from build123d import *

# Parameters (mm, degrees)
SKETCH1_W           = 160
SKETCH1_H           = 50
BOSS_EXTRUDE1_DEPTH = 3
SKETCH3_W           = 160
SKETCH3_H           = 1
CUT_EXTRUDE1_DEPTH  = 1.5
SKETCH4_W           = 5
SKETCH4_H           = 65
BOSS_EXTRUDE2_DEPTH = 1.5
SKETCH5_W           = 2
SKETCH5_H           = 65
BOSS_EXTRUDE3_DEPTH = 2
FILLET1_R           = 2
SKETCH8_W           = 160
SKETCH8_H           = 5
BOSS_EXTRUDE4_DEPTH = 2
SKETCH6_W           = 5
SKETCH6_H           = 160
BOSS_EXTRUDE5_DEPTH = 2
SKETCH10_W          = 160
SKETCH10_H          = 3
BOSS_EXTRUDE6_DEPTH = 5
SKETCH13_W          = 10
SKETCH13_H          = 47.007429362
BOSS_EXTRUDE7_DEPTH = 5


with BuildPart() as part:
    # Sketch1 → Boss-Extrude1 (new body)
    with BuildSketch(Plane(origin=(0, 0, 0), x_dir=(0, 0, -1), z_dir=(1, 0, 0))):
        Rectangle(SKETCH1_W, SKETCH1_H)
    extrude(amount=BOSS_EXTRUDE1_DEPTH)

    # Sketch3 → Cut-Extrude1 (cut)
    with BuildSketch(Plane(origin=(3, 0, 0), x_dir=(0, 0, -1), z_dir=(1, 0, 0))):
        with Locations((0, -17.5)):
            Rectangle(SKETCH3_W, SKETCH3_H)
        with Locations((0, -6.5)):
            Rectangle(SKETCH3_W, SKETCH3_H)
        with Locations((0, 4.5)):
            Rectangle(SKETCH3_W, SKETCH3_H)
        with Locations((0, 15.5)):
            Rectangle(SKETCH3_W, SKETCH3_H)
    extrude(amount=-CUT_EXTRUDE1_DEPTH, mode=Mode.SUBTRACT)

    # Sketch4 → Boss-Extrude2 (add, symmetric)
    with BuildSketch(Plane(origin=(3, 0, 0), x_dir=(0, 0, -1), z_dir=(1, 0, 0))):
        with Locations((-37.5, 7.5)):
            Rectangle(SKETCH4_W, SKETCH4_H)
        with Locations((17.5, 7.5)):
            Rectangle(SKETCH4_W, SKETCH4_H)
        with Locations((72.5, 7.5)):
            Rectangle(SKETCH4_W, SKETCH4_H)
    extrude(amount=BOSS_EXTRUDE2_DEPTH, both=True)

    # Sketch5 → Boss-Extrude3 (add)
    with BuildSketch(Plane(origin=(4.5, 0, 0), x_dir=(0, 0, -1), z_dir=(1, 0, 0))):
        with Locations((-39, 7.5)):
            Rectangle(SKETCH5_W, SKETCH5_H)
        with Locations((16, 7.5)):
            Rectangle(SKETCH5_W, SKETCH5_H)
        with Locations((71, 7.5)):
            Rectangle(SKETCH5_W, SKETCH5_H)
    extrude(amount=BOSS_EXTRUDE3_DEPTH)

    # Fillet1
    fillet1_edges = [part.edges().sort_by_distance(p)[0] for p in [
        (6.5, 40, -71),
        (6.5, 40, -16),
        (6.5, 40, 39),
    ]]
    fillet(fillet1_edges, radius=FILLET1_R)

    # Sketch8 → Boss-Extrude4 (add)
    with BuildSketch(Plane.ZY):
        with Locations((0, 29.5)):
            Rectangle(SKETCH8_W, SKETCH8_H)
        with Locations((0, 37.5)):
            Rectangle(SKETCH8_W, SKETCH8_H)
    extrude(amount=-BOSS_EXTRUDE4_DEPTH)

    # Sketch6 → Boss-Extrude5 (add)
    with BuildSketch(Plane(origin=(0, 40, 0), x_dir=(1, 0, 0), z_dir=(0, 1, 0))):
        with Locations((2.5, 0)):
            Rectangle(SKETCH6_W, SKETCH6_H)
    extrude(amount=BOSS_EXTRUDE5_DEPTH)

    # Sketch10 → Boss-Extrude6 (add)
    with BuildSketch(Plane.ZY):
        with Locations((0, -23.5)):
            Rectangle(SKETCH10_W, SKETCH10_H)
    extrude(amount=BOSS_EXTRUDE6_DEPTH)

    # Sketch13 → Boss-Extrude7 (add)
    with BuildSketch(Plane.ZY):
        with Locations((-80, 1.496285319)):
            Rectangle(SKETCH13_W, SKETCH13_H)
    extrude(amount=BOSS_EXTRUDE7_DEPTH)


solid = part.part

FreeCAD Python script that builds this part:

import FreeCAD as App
import Part
import Sketcher
Q = App.Units.Quantity


def edges_at(feature, points):
    """Names of the edges that pass closest to the given points."""
    edges = feature.Shape.Edges
    near = lambda p: min(range(len(edges)), key=lambda i: edges[i].distToShape(Part.Vertex(*p))[0])
    return sorted({f"Edge{near(p) + 1}" for p in points})


def add_polygon(sketch, points):
    """Adds a closed chain of lines whose ends are joined by coincident constraints."""
    first, n = sketch.GeometryCount, len(points)
    for a, b in zip(points, points[1:] + points[:1]):
        sketch.addGeometry(Part.LineSegment(App.Vector(*a, 0), App.Vector(*b, 0)), False)
    for i in range(n):
        sketch.addConstraint(Sketcher.Constraint("Coincident", first + i, 2, first + (i + 1) % n, 1))

doc = App.newDocument("Part")
body = doc.addObject("PartDesign::Body", "Body")

sketch1 = doc.addObject("Sketcher::SketchObject", "Sketch")
body.addObject(sketch1)
sketch1.AttachmentSupport = (doc.YZ_Plane, [""])
sketch1.MapMode = "FlatFace"
add_polygon(sketch1, [(25, 80), (-25, 80), (-25, -80), (25, -80)])
sketch1.addConstraint([
    Sketcher.Constraint("Horizontal", 0),
    Sketcher.Constraint("Vertical", 1),
    Sketcher.Constraint("Horizontal", 2),
    Sketcher.Constraint("Vertical", 3),
    Sketcher.Constraint("Symmetric", 0, 2, 2, 2, -1, 1),
    Sketcher.Constraint("DistanceX", 0, 2, 0, 1, Q("50 mm")),
    Sketcher.Constraint("DistanceY", 1, 2, 1, 1, Q("160 mm")),
])
pad1 = doc.addObject("PartDesign::Pad", "Pad")
body.addObject(pad1)
pad1.Profile = sketch1
pad1.Length = 3

sketch2 = doc.addObject("Sketcher::SketchObject", "Sketch001")
body.addObject(sketch2)
sketch2.AttachmentSupport = (doc.YZ_Plane, [""])
sketch2.MapMode = "FlatFace"
sketch2.AttachmentOffset = App.Placement(App.Vector(0, 0, 3), App.Rotation())
add_polygon(sketch2, [(-17, 80), (-18, 80), (-18, -80), (-17, -80)])
add_polygon(sketch2, [(-6, 80), (-7, 80), (-7, -80), (-6, -80)])
add_polygon(sketch2, [(5, 80), (4, 80), (4, -80), (5, -80)])
add_polygon(sketch2, [(16, 80), (15, 80), (15, -80), (16, -80)])
sketch2.addConstraint([
    Sketcher.Constraint("Horizontal", 0),
    Sketcher.Constraint("Vertical", 1),
    Sketcher.Constraint("Horizontal", 2),
    Sketcher.Constraint("Vertical", 3),
    Sketcher.Constraint("Horizontal", 4),
    Sketcher.Constraint("Vertical", 5),
    Sketcher.Constraint("Horizontal", 6),
    Sketcher.Constraint("Vertical", 7),
    Sketcher.Constraint("Horizontal", 8),
    Sketcher.Constraint("Vertical", 9),
    Sketcher.Constraint("Horizontal", 10),
    Sketcher.Constraint("Vertical", 11),
    Sketcher.Constraint("Horizontal", 12),
    Sketcher.Constraint("Vertical", 13),
    Sketcher.Constraint("Horizontal", 14),
    Sketcher.Constraint("Vertical", 15),
    Sketcher.Constraint("Horizontal", 3, 2, 4, 2),
    Sketcher.Constraint("Horizontal", 2, 2, 5, 2),
    Sketcher.Constraint("Horizontal", 7, 2, 8, 2),
    Sketcher.Constraint("Horizontal", 6, 2, 9, 2),
    Sketcher.Constraint("Horizontal", 11, 2, 12, 2),
    Sketcher.Constraint("Horizontal", 10, 2, 13, 2),
    Sketcher.Constraint("Equal", 2, 4),
    Sketcher.Constraint("Equal", 6, 8),
    Sketcher.Constraint("Equal", 10, 12),
    Sketcher.Constraint("DistanceX", 0, 2, 0, 1, Q("1 mm")),
    Sketcher.Constraint("DistanceY", 1, 2, 1, 1, Q("160 mm")),
    Sketcher.Constraint("DistanceX", 0, 2, -1, 1, Q("18 mm")),
    Sketcher.Constraint("DistanceY", -1, 1, 0, 2, Q("80 mm")),
    Sketcher.Constraint("DistanceX", 4, 2, -1, 1, Q("7 mm")),
    Sketcher.Constraint("DistanceX", -1, 1, 8, 2, Q("4 mm")),
    Sketcher.Constraint("DistanceX", -1, 1, 12, 2, Q("15 mm")),
])
pocket1 = doc.addObject("PartDesign::Pocket", "Pocket")
body.addObject(pocket1)
pocket1.Profile = sketch2
pocket1.Length = 1.5

sketch3 = doc.addObject("Sketcher::SketchObject", "Sketch002")
body.addObject(sketch3)
sketch3.AttachmentSupport = (doc.YZ_Plane, [""])
sketch3.MapMode = "FlatFace"
sketch3.AttachmentOffset = App.Placement(App.Vector(0, 0, 3), App.Rotation())
add_polygon(sketch3, [(40, 40), (-25, 40), (-25, 35), (40, 35)])
add_polygon(sketch3, [(40, -15), (-25, -15), (-25, -20), (40, -20)])
add_polygon(sketch3, [(40, -70), (-25, -70), (-25, -75), (40, -75)])
sketch3.addConstraint([
    Sketcher.Constraint("Horizontal", 0),
    Sketcher.Constraint("Vertical", 1),
    Sketcher.Constraint("Horizontal", 2),
    Sketcher.Constraint("Vertical", 3),
    Sketcher.Constraint("Horizontal", 4),
    Sketcher.Constraint("Vertical", 5),
    Sketcher.Constraint("Horizontal", 6),
    Sketcher.Constraint("Vertical", 7),
    Sketcher.Constraint("Horizontal", 8),
    Sketcher.Constraint("Vertical", 9),
    Sketcher.Constraint("Horizontal", 10),
    Sketcher.Constraint("Vertical", 11),
    Sketcher.Constraint("Vertical", 1, 2, 4, 2),
    Sketcher.Constraint("Vertical", 3, 2, 6, 2),
    Sketcher.Constraint("Vertical", 5, 2, 8, 2),
    Sketcher.Constraint("Vertical", 7, 2, 10, 2),
    Sketcher.Constraint("Equal", 3, 5),
    Sketcher.Constraint("Equal", 7, 9),
    Sketcher.Constraint("DistanceX", 0, 2, 0, 1, Q("65 mm")),
    Sketcher.Constraint("DistanceY", 1, 2, 1, 1, Q("5 mm")),
    Sketcher.Constraint("DistanceX", 0, 2, -1, 1, Q("25 mm")),
    Sketcher.Constraint("DistanceY", -1, 1, 0, 2, Q("40 mm")),
    Sketcher.Constraint("DistanceY", 4, 2, -1, 1, Q("15 mm")),
    Sketcher.Constraint("DistanceY", 8, 2, -1, 1, Q("70 mm")),
])
pad2 = doc.addObject("PartDesign::Pad", "Pad001")
body.addObject(pad2)
pad2.Profile = sketch3
pad2.Length = 3
pad2.Midplane = True

sketch4 = doc.addObject("Sketcher::SketchObject", "Sketch003")
body.addObject(sketch4)
sketch4.AttachmentSupport = (doc.YZ_Plane, [""])
sketch4.MapMode = "FlatFace"
sketch4.AttachmentOffset = App.Placement(App.Vector(0, 0, 4.5), App.Rotation())
add_polygon(sketch4, [(40, 40), (-25, 40), (-25, 38), (40, 38)])
add_polygon(sketch4, [(40, -15), (-25, -15), (-25, -17), (40, -17)])
add_polygon(sketch4, [(40, -70), (-25, -70), (-25, -72), (40, -72)])
sketch4.addConstraint([
    Sketcher.Constraint("Horizontal", 0),
    Sketcher.Constraint("Vertical", 1),
    Sketcher.Constraint("Horizontal", 2),
    Sketcher.Constraint("Vertical", 3),
    Sketcher.Constraint("Horizontal", 4),
    Sketcher.Constraint("Vertical", 5),
    Sketcher.Constraint("Horizontal", 6),
    Sketcher.Constraint("Vertical", 7),
    Sketcher.Constraint("Horizontal", 8),
    Sketcher.Constraint("Vertical", 9),
    Sketcher.Constraint("Horizontal", 10),
    Sketcher.Constraint("Vertical", 11),
    Sketcher.Constraint("Vertical", 1, 2, 4, 2),
    Sketcher.Constraint("Vertical", 3, 2, 6, 2),
    Sketcher.Constraint("Vertical", 5, 2, 8, 2),
    Sketcher.Constraint("Vertical", 7, 2, 10, 2),
    Sketcher.Constraint("Equal", 3, 5),
    Sketcher.Constraint("Equal", 7, 9),
    Sketcher.Constraint("DistanceX", 0, 2, 0, 1, Q("65 mm")),
    Sketcher.Constraint("DistanceY", 1, 2, 1, 1, Q("2 mm")),
    Sketcher.Constraint("DistanceX", 0, 2, -1, 1, Q("25 mm")),
    Sketcher.Constraint("DistanceY", -1, 1, 0, 2, Q("40 mm")),
    Sketcher.Constraint("DistanceY", 4, 2, -1, 1, Q("15 mm")),
    Sketcher.Constraint("DistanceY", 8, 2, -1, 1, Q("70 mm")),
])
pad3 = doc.addObject("PartDesign::Pad", "Pad002")
body.addObject(pad3)
pad3.Profile = sketch4
pad3.Length = 2
doc.recompute()

fillet = doc.addObject("PartDesign::Fillet", "Fillet")
body.addObject(fillet)
fillet.Base = (pad3, edges_at(pad3, [(6.5, 40, -71), (6.5, 40, -16), (6.5, 40, 39)]))
fillet.Radius = 2

sketch5 = doc.addObject("Sketcher::SketchObject", "Sketch004")
body.addObject(sketch5)
sketch5.AttachmentSupport = (doc.YZ_Plane, [""])
sketch5.MapMode = "FlatFace"
add_polygon(sketch5, [(32, -80), (27, -80), (27, 80), (32, 80)])
add_polygon(sketch5, [(40, -80), (35, -80), (35, 80), (40, 80)])
sketch5.addConstraint([
    Sketcher.Constraint("Horizontal", 0),
    Sketcher.Constraint("Vertical", 1),
    Sketcher.Constraint("Horizontal", 2),
    Sketcher.Constraint("Vertical", 3),
    Sketcher.Constraint("Horizontal", 4),
    Sketcher.Constraint("Vertical", 5),
    Sketcher.Constraint("Horizontal", 6),
    Sketcher.Constraint("Vertical", 7),
    Sketcher.Constraint("Horizontal", 3, 2, 4, 2),
    Sketcher.Constraint("Horizontal", 2, 2, 5, 2),
    Sketcher.Constraint("Equal", 2, 4),
    Sketcher.Constraint("DistanceX", 0, 2, 0, 1, Q("5 mm")),
    Sketcher.Constraint("DistanceY", 1, 1, 1, 2, Q("160 mm")),
    Sketcher.Constraint("DistanceX", -1, 1, 0, 2, Q("27 mm")),
    Sketcher.Constraint("DistanceY", 0, 2, -1, 1, Q("80 mm")),
    Sketcher.Constraint("DistanceX", -1, 1, 4, 2, Q("35 mm")),
])
pad4 = doc.addObject("PartDesign::Pad", "Pad003")
body.addObject(pad4)
pad4.Profile = sketch5
pad4.Length = 2

sketch6 = doc.addObject("Sketcher::SketchObject", "Sketch005")
body.addObject(sketch6)
sketch6.AttachmentSupport = (doc.XZ_Plane, [""])
sketch6.MapMode = "FlatFace"
sketch6.AttachmentOffset = App.Placement(App.Vector(0, 0, -40), App.Rotation())
add_polygon(sketch6, [(0, -80), (0, 80), (5, 80), (5, -80)])
sketch6.addConstraint([
    Sketcher.Constraint("Vertical", 0),
    Sketcher.Constraint("Horizontal", 1),
    Sketcher.Constraint("Vertical", 2),
    Sketcher.Constraint("Horizontal", 3),
    Sketcher.Constraint("Symmetric", 0, 2, 3, 2, -1, 1),
    Sketcher.Constraint("DistanceX", 1, 1, 1, 2, Q("5 mm")),
    Sketcher.Constraint("DistanceY", 0, 1, 0, 2, Q("160 mm")),
])
pad5 = doc.addObject("PartDesign::Pad", "Pad004")
body.addObject(pad5)
pad5.Profile = sketch6
pad5.Length = 2
pad5.Reversed = True

sketch7 = doc.addObject("Sketcher::SketchObject", "Sketch006")
body.addObject(sketch7)
sketch7.AttachmentSupport = (doc.YZ_Plane, [""])
sketch7.MapMode = "FlatFace"
add_polygon(sketch7, [(-22, -80), (-25, -80), (-25, 80), (-22, 80)])
sketch7.addConstraint([
    Sketcher.Constraint("Horizontal", 0),
    Sketcher.Constraint("Vertical", 1),
    Sketcher.Constraint("Horizontal", 2),
    Sketcher.Constraint("Vertical", 3),
    Sketcher.Constraint("DistanceX", 0, 2, 0, 1, Q("3 mm")),
    Sketcher.Constraint("DistanceY", 1, 1, 1, 2, Q("160 mm")),
    Sketcher.Constraint("DistanceX", 0, 2, -1, 1, Q("25 mm")),
    Sketcher.Constraint("DistanceY", 0, 2, -1, 1, Q("80 mm")),
])
pad6 = doc.addObject("PartDesign::Pad", "Pad005")
body.addObject(pad6)
pad6.Profile = sketch7
pad6.Length = 5
pad6.Reversed = True

sketch8 = doc.addObject("Sketcher::SketchObject", "Sketch007")
body.addObject(sketch8)
sketch8.AttachmentSupport = (doc.YZ_Plane, [""])
sketch8.MapMode = "FlatFace"
add_polygon(sketch8, [(25, -85), (-22, -85), (-22, -75), (25, -75)])
sketch8.addConstraint([
    Sketcher.Constraint("Horizontal", 0),
    Sketcher.Constraint("Vertical", 1),
    Sketcher.Constraint("Horizontal", 2),
    Sketcher.Constraint("Vertical", 3),
    Sketcher.Constraint("DistanceY", 1, 1, 1, 2, Q("10 mm")),
    Sketcher.Constraint("DistanceY", 0, 2, -1, 1, Q("85 mm")),
    Sketcher.Constraint("DistanceX", -1, 1, 2, 2, Q("25 mm")),
    Sketcher.Constraint("DistanceX", 0, 2, 0, 1, Q("47.007429 mm")),
])
pad7 = doc.addObject("PartDesign::Pad", "Pad006")
body.addObject(pad7)
pad7.Profile = sketch8
pad7.Length = 5
pad7.Reversed = True

doc.recompute()
